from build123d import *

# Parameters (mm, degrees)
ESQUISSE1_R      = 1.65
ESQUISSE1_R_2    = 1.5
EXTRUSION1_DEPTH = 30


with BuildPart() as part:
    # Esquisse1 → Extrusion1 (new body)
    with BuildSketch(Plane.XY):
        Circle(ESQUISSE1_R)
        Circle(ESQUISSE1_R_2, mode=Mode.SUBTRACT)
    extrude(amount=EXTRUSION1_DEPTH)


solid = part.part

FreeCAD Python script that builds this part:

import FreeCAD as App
import Part
import Sketcher

V = App.Vector
Q = App.Units.Quantity

doc = App.newDocument("Part")
body = doc.addObject("PartDesign::Body", "Body")

# Sketch on XY plane
sketch1 = body.newObject("Sketcher::SketchObject", "Sketch")
sketch1.AttachmentSupport = (doc.getObject("XY_Plane"), [""])
sketch1.MapMode = "FlatFace"
sketch1.addGeometry([
    Part.Circle(V(0, 0, 0), V(0, 0, 1), 1.65),
    Part.Circle(V(0, 0, 0), V(0, 0, 1), 1.5),
], False)
sketch1.addConstraint([
    Sketcher.Constraint("Coincident", 0, 3, -1, 1),
    Sketcher.Constraint("Coincident", 1, 3, -1, 1),
    Sketcher.Constraint("Diameter", 1, Q("3 mm")),
    Sketcher.Constraint("Diameter", 0, Q("3.3 mm")),
])
pad1 = body.newObject("PartDesign::Pad", "Pad")
pad1.Profile = sketch1
pad1.Length = 30

doc.recompute()
